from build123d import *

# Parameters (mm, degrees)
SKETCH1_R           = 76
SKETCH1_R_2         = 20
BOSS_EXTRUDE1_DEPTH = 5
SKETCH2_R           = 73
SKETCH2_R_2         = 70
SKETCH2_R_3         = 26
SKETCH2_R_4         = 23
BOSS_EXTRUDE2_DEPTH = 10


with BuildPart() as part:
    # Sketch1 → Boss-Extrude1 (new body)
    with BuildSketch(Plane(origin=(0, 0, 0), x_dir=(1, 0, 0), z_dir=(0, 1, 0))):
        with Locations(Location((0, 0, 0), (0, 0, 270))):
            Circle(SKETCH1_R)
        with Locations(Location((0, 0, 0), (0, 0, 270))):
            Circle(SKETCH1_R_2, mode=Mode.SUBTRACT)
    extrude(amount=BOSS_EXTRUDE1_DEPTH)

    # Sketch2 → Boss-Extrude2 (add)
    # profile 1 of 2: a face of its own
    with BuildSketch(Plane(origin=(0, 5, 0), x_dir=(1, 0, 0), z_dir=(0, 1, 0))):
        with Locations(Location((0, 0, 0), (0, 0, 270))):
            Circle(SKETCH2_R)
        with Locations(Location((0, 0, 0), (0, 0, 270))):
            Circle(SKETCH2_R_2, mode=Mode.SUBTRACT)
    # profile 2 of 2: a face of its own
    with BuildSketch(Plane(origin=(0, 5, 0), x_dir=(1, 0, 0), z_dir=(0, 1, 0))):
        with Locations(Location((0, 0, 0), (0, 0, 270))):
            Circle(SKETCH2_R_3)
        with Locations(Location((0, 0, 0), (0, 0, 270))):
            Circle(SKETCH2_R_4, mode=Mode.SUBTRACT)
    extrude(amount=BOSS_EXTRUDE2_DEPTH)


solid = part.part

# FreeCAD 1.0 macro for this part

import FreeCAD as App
import Part
import Sketcher
from FreeCAD import Vector

doc = App.newDocument("Part")
body = doc.addObject("PartDesign::Body", "Body")

sketch1 = doc.addObject("Sketcher::SketchObject", "Sketch")
body.addObject(sketch1)
sketch1.AttachmentSupport = (doc.XZ_Plane, [""])
sketch1.MapMode = "FlatFace"
sketch1.addGeometry([
    Part.Circle(Vector(0, 0, 0), Vector(0, 0, 1), 76),
    Part.Circle(Vector(0, 0, 0), Vector(0, 0, 1), 20),
], False)
sketch1.addConstraint([
    Sketcher.Constraint("Coincident", 0, 3, -1, 1),
    Sketcher.Constraint("Coincident", 1, 3, -1, 1),
    Sketcher.Constraint("Diameter", 0, 152.0),
    Sketcher.Constraint("Diameter", 1, 40.0),
])
pad1 = doc.addObject("PartDesign::Pad", "Pad")
body.addObject(pad1)
pad1.Profile = sketch1
pad1.Length = 5
pad1.Reversed = True

sketch2 = doc.addObject("Sketcher::SketchObject", "Sketch001")
body.addObject(sketch2)
sketch2.AttachmentSupport = (doc.XZ_Plane, [""])
sketch2.MapMode = "FlatFace"
sketch2.AttachmentOffset = App.Placement(Vector(0, 0, -5), App.Rotation())
sketch2.addGeometry([
    Part.Circle(Vector(0, 0, 0), Vector(0, 0, 1), 73),
    Part.Circle(Vector(0, 0, 0), Vector(0, 0, 1), 70),
    Part.Circle(Vector(0, 0, 0), Vector(0, 0, 1), 26),
    Part.Circle(Vector(0, 0, 0), Vector(0, 0, 1), 23),
], False)
sketch2.addConstraint([
    Sketcher.Constraint("Coincident", 0, 3, -1, 1),
    Sketcher.Constraint("Coincident", 1, 3, -1, 1),
    Sketcher.Constraint("Coincident", 2, 3, -1, 1),
    Sketcher.Constraint("Coincident", 3, 3, -1, 1),
    Sketcher.Constraint("Diameter", 0, 146.0),
    Sketcher.Constraint("Diameter", 1, 140.0),
    Sketcher.Constraint("Diameter", 2, 52.0),
    Sketcher.Constraint("Diameter", 3, 46.0),
])
pad2 = doc.addObject("PartDesign::Pad", "Pad001")
body.addObject(pad2)
pad2.Profile = sketch2
pad2.Length = 10
pad2.Reversed = True

doc.recompute()
